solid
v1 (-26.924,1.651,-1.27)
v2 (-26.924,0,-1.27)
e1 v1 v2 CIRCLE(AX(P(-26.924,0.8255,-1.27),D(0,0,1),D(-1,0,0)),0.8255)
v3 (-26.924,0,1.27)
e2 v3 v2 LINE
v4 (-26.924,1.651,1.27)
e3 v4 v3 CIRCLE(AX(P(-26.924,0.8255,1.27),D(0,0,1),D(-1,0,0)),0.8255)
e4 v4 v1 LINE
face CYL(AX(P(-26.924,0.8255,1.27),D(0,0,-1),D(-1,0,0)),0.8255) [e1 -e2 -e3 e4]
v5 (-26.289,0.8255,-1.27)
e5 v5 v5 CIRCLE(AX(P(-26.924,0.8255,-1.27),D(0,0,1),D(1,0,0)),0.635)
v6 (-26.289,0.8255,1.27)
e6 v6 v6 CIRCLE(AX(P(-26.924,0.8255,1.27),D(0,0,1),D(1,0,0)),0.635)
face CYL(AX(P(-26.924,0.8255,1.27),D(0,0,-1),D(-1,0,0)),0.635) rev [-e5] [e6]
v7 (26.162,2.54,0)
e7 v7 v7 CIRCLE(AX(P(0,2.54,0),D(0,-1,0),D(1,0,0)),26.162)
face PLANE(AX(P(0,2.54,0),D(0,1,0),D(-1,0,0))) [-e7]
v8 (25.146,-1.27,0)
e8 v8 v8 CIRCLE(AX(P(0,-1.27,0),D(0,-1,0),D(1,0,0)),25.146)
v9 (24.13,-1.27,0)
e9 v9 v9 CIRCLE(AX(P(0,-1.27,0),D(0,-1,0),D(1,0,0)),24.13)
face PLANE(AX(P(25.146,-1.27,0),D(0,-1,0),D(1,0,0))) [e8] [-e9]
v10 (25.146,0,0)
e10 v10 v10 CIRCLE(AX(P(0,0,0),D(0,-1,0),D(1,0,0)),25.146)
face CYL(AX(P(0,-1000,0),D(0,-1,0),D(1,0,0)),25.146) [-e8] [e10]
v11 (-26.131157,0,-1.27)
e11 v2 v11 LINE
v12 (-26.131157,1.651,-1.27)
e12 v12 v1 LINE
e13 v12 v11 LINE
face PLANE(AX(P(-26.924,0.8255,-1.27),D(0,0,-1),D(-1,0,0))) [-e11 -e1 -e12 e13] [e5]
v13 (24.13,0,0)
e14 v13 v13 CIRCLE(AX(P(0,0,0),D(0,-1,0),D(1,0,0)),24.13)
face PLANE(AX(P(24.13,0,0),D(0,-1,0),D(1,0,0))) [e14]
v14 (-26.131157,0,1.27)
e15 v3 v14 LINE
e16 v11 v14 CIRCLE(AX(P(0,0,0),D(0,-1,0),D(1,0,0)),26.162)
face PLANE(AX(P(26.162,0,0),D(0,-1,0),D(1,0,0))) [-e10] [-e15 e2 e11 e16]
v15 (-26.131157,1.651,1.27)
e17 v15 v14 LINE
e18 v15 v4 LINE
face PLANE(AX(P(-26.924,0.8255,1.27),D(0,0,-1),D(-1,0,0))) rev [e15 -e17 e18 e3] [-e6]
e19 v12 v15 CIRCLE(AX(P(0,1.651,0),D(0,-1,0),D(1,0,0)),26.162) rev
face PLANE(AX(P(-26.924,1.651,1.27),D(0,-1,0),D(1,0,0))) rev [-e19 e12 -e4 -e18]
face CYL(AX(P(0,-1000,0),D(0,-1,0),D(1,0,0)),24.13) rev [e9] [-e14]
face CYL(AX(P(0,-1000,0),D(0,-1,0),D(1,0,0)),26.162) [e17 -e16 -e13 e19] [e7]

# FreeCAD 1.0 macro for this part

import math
import FreeCAD as App
import Part
import Sketcher
Q = App.Units.Quantity

doc = App.newDocument("Part")
body = doc.addObject("PartDesign::Body", "Body")

# Sketch on XY plane
sketch1 = doc.addObject("Sketcher::SketchObject", "Sketch")
body.addObject(sketch1)
sketch1.AttachmentSupport = (doc.XY_Plane, [""])
sketch1.MapMode = "FlatFace"
sketch1.addGeometry(Part.LineSegment(App.Vector(0, 2.5, 0), App.Vector(0, 0, 0)), False)
sketch1.addGeometry(Part.LineSegment(App.Vector(0, 0, 0), App.Vector(24.1, 0, 0)), False)
sketch1.addGeometry(Part.LineSegment(App.Vector(24.1, 0, 0), App.Vector(24.1, -1.3, 0)), False)
sketch1.addGeometry(Part.LineSegment(App.Vector(24.1, -1.3, 0), App.Vector(25.1, -1.3, 0)), False)
sketch1.addGeometry(Part.LineSegment(App.Vector(25.1, -1.3, 0), App.Vector(25.1, 0, 0)), False)
sketch1.addGeometry(Part.LineSegment(App.Vector(25.1, 0, 0), App.Vector(26.2, 0, 0)), False)
sketch1.addGeometry(Part.LineSegment(App.Vector(26.2, 0, 0), App.Vector(26.2, 2.5, 0)), False)
sketch1.addGeometry(Part.LineSegment(App.Vector(26.2, 2.5, 0), App.Vector(0, 2.5, 0)), False)
sketch1.addConstraint(Sketcher.Constraint("Coincident", 0, 2, 1, 1))
sketch1.addConstraint(Sketcher.Constraint("Coincident", 1, 2, 2, 1))
sketch1.addConstraint(Sketcher.Constraint("Coincident", 2, 2, 3, 1))
sketch1.addConstraint(Sketcher.Constraint("Coincident", 3, 2, 4, 1))
sketch1.addConstraint(Sketcher.Constraint("Coincident", 4, 2, 5, 1))
sketch1.addConstraint(Sketcher.Constraint("Coincident", 5, 2, 6, 1))
sketch1.addConstraint(Sketcher.Constraint("Coincident", 6, 2, 7, 1))
sketch1.addConstraint(Sketcher.Constraint("Coincident", 7, 2, 0, 1))
sketch1.addConstraint(Sketcher.Constraint("Vertical", 0))
sketch1.addConstraint(Sketcher.Constraint("Horizontal", 1))
sketch1.addConstraint(Sketcher.Constraint("Vertical", 2))
sketch1.addConstraint(Sketcher.Constraint("Horizontal", 3))
sketch1.addConstraint(Sketcher.Constraint("Vertical", 4))
sketch1.addConstraint(Sketcher.Constraint("Horizontal", 5))
sketch1.addConstraint(Sketcher.Constraint("Vertical", 6))
sketch1.addConstraint(Sketcher.Constraint("Horizontal", 7))
sketch1.addConstraint(Sketcher.Constraint("Coincident", 0, 2, -1, 1))
sketch1.addConstraint(Sketcher.Constraint("PointOnObject", 4, 2, -1))
sketch1.addConstraint(Sketcher.Constraint("Equal", 3, 5))
sketch1.addConstraint(Sketcher.Constraint("DistanceY", 0, 2, 0, 1, Q("0.1 in")))
sketch1.addConstraint(Sketcher.Constraint("DistanceX", 1, 1, 1, 2, Q("0.95 in")))
sketch1.addConstraint(Sketcher.Constraint("DistanceX", 3, 1, 3, 2, Q("0.04 in")))
sketch1.addConstraint(Sketcher.Constraint("DistanceY", 2, 2, 2, 1, Q("0.05 in")))
revolution = doc.addObject("PartDesign::Revolution", "Revolution")
body.addObject(revolution)
revolution.Profile = sketch1
revolution.ReferenceAxis = (sketch1, ["V_Axis"])
revolution.Angle = 360

# Sketch on XY plane
sketch2 = doc.addObject("Sketcher::SketchObject", "Sketch001")
body.addObject(sketch2)
sketch2.AttachmentSupport = (doc.XY_Plane, [""])
sketch2.MapMode = "FlatFace"
sketch2.addGeometry(Part.LineSegment(App.Vector(-25.4, 0, 0), App.Vector(-25.4, 1.7, 0)), False)
sketch2.addGeometry(Part.LineSegment(App.Vector(-25.4, 1.7, 0), App.Vector(-26.9, 1.7, 0)), False)
sketch2.addGeometry(Part.ArcOfCircle(Part.Circle(App.Vector(-26.9, 0.8, 0), App.Vector(0, 0, 1), 0.8), math.radians(90), math.radians(270)), False)
sketch2.addGeometry(Part.LineSegment(App.Vector(-26.9, 0, 0), App.Vector(-25.4, 0, 0)), False)
sketch2.addGeometry(Part.Circle(App.Vector(-26.9, 0.8, 0), App.Vector(0, 0, 1), 0.6), False)
sketch2.addConstraint(Sketcher.Constraint("Coincident", 0, 2, 1, 1))
sketch2.addConstraint(Sketcher.Constraint("Tangent", 1, 2, 2, 1))
sketch2.addConstraint(Sketcher.Constraint("Tangent", 2, 2, 3, 1))
sketch2.addConstraint(Sketcher.Constraint("Coincident", 3, 2, 0, 1))
sketch2.addConstraint(Sketcher.Constraint("Vertical", 0))
sketch2.addConstraint(Sketcher.Constraint("Horizontal", 1))
sketch2.addConstraint(Sketcher.Constraint("Horizontal", 3))
sketch2.addConstraint(Sketcher.Constraint("Coincident", 4, 3, 2, 3))
sketch2.addConstraint(Sketcher.Constraint("PointOnObject", 2, 2, -1))
sketch2.addConstraint(Sketcher.Constraint("Diameter", 4, Q("0.05 in")))
sketch2.addConstraint(Sketcher.Constraint("DistanceX", 0, 2, -1, 1, Q("1 in")))
sketch2.addConstraint(Sketcher.Constraint("DistanceX", 1, 2, 1, 1, Q("0.06 in")))
sketch2.addConstraint(Sketcher.Constraint("Radius", 2, Q("0.0325 in")))
pad1 = doc.addObject("PartDesign::Pad", "Pad")
body.addObject(pad1)
pad1.Profile = sketch2
pad1.Length = Q("0.1 in")
pad1.Midplane = True

doc.recompute()
